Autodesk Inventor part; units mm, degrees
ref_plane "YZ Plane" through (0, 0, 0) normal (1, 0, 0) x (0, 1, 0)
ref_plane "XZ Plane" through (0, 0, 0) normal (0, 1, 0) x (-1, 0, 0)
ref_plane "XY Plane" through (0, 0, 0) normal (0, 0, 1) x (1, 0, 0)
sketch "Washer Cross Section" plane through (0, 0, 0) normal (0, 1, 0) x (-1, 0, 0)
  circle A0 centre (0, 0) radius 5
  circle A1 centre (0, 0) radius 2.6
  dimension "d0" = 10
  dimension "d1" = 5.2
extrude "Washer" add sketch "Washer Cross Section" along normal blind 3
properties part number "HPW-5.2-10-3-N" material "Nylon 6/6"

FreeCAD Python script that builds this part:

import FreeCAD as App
import Part
import Sketcher

V = App.Vector
Q = App.Units.Quantity

doc = App.newDocument("Part")
body = doc.addObject("PartDesign::Body", "Body")

# Sketch on XZ plane
sketch1 = doc.addObject("Sketcher::SketchObject", "Sketch")
body.addObject(sketch1)
sketch1.AttachmentSupport = (doc.XZ_Plane, [""])
sketch1.MapMode = "FlatFace"
sketch1.addGeometry([
    Part.Circle(V(0, 0, 0), V(0, 0, 1), 5),
    Part.Circle(V(0, 0, 0), V(0, 0, 1), 2.6),
], False)
sketch1.addConstraint([
    Sketcher.Constraint("Coincident", 0, 3, -1, 1),
    Sketcher.Constraint("Coincident", 1, 3, -1, 1),
    Sketcher.Constraint("Diameter", 0, Q("10 mm")),
    Sketcher.Constraint("Diameter", 1, Q("5.2 mm")),
])
pad1 = doc.addObject("PartDesign::Pad", "Pad")
body.addObject(pad1)
pad1.Profile = sketch1
pad1.Length = 3
pad1.Reversed = True

doc.recompute()
